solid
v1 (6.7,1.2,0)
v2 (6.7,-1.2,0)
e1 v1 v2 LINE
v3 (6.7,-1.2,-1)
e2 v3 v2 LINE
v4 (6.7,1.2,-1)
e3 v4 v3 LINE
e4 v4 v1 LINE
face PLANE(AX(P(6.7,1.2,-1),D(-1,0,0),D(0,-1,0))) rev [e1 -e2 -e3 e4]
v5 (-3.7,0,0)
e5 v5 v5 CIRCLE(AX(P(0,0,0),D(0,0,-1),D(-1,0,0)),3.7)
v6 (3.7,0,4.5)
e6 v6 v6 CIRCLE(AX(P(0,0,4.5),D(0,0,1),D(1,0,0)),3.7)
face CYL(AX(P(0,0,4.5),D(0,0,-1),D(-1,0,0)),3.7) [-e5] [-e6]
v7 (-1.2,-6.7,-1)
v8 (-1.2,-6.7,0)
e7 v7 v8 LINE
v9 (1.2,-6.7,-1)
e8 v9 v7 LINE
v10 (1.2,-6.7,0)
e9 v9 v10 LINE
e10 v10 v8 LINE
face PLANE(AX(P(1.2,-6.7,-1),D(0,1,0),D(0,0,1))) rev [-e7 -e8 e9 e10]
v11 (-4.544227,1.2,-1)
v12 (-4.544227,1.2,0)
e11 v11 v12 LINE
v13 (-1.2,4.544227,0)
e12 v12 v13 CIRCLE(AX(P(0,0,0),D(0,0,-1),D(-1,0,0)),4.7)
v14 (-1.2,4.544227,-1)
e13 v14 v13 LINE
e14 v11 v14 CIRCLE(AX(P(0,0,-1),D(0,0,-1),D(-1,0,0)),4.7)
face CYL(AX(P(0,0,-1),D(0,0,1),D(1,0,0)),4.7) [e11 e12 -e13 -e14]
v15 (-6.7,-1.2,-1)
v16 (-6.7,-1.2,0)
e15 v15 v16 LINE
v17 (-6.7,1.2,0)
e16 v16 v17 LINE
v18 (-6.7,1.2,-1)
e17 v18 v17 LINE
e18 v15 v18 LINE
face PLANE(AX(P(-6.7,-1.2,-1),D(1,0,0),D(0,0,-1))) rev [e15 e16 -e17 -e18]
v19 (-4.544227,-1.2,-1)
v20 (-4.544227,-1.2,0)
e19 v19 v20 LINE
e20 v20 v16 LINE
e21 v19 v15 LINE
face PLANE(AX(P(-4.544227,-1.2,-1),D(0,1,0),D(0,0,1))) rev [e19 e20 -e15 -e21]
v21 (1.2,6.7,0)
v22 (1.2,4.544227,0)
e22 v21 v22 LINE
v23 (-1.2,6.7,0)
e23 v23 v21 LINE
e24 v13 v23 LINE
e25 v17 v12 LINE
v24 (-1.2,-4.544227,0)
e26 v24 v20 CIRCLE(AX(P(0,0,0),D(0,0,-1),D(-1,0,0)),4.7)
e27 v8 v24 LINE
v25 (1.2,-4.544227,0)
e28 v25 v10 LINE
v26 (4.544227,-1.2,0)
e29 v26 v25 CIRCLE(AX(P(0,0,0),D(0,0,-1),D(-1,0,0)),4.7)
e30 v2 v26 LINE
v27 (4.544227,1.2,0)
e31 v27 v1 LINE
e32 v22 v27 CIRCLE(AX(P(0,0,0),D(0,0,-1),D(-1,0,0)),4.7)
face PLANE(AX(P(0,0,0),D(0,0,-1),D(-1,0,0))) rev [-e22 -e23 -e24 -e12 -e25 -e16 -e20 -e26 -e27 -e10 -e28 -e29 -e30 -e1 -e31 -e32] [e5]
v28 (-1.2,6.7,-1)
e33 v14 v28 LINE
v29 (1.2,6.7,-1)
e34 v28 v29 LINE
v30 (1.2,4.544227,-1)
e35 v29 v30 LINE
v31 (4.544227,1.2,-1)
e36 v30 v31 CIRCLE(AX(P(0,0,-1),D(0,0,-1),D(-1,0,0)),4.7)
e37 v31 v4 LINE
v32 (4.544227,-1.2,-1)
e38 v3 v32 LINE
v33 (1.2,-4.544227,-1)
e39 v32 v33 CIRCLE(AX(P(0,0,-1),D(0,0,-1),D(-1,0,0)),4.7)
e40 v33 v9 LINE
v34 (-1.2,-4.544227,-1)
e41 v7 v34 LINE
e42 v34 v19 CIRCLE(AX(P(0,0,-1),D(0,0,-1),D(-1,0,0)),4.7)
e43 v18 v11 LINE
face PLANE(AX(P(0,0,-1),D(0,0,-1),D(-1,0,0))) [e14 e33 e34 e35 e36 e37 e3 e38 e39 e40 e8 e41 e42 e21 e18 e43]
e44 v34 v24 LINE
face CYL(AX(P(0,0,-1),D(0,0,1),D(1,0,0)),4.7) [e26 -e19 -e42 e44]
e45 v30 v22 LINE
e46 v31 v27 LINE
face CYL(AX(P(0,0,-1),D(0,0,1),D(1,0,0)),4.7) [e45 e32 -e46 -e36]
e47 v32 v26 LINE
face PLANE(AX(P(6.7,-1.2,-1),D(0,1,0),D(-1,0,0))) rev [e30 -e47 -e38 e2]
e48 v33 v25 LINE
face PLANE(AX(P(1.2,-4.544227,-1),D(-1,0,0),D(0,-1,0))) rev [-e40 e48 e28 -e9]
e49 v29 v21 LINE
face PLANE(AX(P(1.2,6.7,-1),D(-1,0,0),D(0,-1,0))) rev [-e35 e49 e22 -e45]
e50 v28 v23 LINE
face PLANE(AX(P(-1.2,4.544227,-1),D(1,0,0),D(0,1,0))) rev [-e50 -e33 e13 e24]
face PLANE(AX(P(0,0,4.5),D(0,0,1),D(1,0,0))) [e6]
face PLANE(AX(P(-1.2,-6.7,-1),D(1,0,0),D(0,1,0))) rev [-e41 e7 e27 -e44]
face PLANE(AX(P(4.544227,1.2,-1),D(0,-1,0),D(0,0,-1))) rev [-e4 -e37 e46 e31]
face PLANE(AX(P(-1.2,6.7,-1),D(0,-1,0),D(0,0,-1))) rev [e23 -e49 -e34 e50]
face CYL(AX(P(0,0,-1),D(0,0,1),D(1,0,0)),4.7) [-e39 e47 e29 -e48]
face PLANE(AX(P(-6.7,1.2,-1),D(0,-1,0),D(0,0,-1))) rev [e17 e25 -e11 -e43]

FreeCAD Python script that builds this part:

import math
import FreeCAD as App
import Part
import Sketcher
from FreeCAD import Vector

doc = App.newDocument("Part")
body = doc.addObject("PartDesign::Body", "Body")

# Sketch on XY plane
sketch1 = body.newObject("Sketcher::SketchObject", "Sketch")
sketch1.AttachmentSupport = (doc.getObject("XY_Plane"), [""])
sketch1.MapMode = "FlatFace"
sketch1.addGeometry(Part.Circle(Vector(0, 0, 0), Vector(0, 0, 1), 3.7), False)
sketch1.addConstraint([
    Sketcher.Constraint("Coincident", 0, 3, -1, 1),
    Sketcher.Constraint("Diameter", 0, 7.4),
])
pad1 = body.newObject("PartDesign::Pad", "Pad")
pad1.Profile = sketch1
pad1.Length = 4.5

# Sketch on XY plane
sketch2 = body.newObject("Sketcher::SketchObject", "Sketch001")
sketch2.AttachmentSupport = (doc.getObject("XY_Plane"), [""])
sketch2.MapMode = "FlatFace"
sketch2.addGeometry([
    Part.LineSegment(Vector(1.2, 6.7, 0), Vector(1.2, 4.544227, 0)),  # 0
    Part.ArcOfCircle(Part.Circle(Vector(0, 0, 0), Vector(0, 0, 1), 4.7), math.radians(14.792497), math.radians(75.207503)),  # 1
    Part.LineSegment(Vector(4.544227, 1.2, 0), Vector(6.7, 1.2, 0)),  # 2
    Part.LineSegment(Vector(6.7, 1.2, 0), Vector(6.7, -1.2, 0)),  # 3
    Part.LineSegment(Vector(6.7, -1.2, 0), Vector(4.544227, -1.2, 0)),  # 4
    Part.ArcOfCircle(Part.Circle(Vector(0, 0, 0), Vector(0, 0, 1), 4.7), math.radians(-75.207503), math.radians(-14.792497)),  # 5
    Part.LineSegment(Vector(1.2, -4.544227, 0), Vector(1.2, -6.7, 0)),  # 6
    Part.LineSegment(Vector(1.2, -6.7, 0), Vector(-1.2, -6.7, 0)),  # 7
    Part.LineSegment(Vector(-1.2, -6.7, 0), Vector(-1.2, -4.544227, 0)),  # 8
    Part.ArcOfCircle(Part.Circle(Vector(0, 0, 0), Vector(0, 0, 1), 4.7), math.radians(-165.207503), math.radians(-104.792497)),  # 9
    Part.LineSegment(Vector(-4.544227, -1.2, 0), Vector(-6.7, -1.2, 0)),  # 10
    Part.LineSegment(Vector(-6.7, -1.2, 0), Vector(-6.7, 1.2, 0)),  # 11
    Part.LineSegment(Vector(-6.7, 1.2, 0), Vector(-4.544227, 1.2, 0)),  # 12
    Part.ArcOfCircle(Part.Circle(Vector(0, 0, 0), Vector(0, 0, 1), 4.7), math.radians(104.792497), math.radians(165.207503)),  # 13
    Part.LineSegment(Vector(-1.2, 4.544227, 0), Vector(-1.2, 6.7, 0)),  # 14
    Part.LineSegment(Vector(-1.2, 6.7, 0), Vector(1.2, 6.7, 0)),  # 15
], False)
sketch2.addConstraint([
    Sketcher.Constraint("Coincident", 0, 2, 1, 2),
    Sketcher.Constraint("Coincident", 1, 1, 2, 1),
    Sketcher.Constraint("Coincident", 2, 2, 3, 1),
    Sketcher.Constraint("Coincident", 3, 2, 4, 1),
    Sketcher.Constraint("Coincident", 4, 2, 5, 2),
    Sketcher.Constraint("Coincident", 5, 1, 6, 1),
    Sketcher.Constraint("Coincident", 6, 2, 7, 1),
    Sketcher.Constraint("Coincident", 7, 2, 8, 1),
    Sketcher.Constraint("Coincident", 8, 2, 9, 2),
    Sketcher.Constraint("Coincident", 9, 1, 10, 1),
    Sketcher.Constraint("Coincident", 10, 2, 11, 1),
    Sketcher.Constraint("Coincident", 11, 2, 12, 1),
    Sketcher.Constraint("Coincident", 12, 2, 13, 2),
    Sketcher.Constraint("Coincident", 13, 1, 14, 1),
    Sketcher.Constraint("Coincident", 14, 2, 15, 1),
    Sketcher.Constraint("Coincident", 15, 2, 0, 1),
    Sketcher.Constraint("Vertical", 0),
    Sketcher.Constraint("Horizontal", 2),
    Sketcher.Constraint("Vertical", 3),
    Sketcher.Constraint("Horizontal", 4),
    Sketcher.Constraint("Vertical", 6),
    Sketcher.Constraint("Horizontal", 7),
    Sketcher.Constraint("Vertical", 8),
    Sketcher.Constraint("Horizontal", 10),
    Sketcher.Constraint("Vertical", 11),
    Sketcher.Constraint("Horizontal", 12),
    Sketcher.Constraint("Vertical", 14),
    Sketcher.Constraint("Horizontal", 15),
    Sketcher.Constraint("Coincident", 1, 3, -1, 1),
    Sketcher.Constraint("Coincident", 5, 3, -1, 1),
    Sketcher.Constraint("Coincident", 9, 3, -1, 1),
    Sketcher.Constraint("Coincident", 13, 3, -1, 1),
    Sketcher.Constraint("Equal", 1, 5),
    Sketcher.Constraint("Equal", 5, 9),
    Sketcher.Constraint("Equal", 9, 13),
    Sketcher.Constraint("Symmetric", 2, 2, 10, 2, -1, 1),
    Sketcher.Constraint("Symmetric", 6, 2, 14, 2, -1, 1),
    Sketcher.Constraint("Horizontal", 5, 1, 8, 2),
    Sketcher.Constraint("Horizontal", 4, 2, 9, 1),
    Sketcher.Constraint("Horizontal", 2, 2, 11, 2),
    Sketcher.Constraint("Horizontal", 0, 2, 13, 1),
    Sketcher.Constraint("Equal", 12, 0),
    Sketcher.Constraint("Equal", 15, 3),
    Sketcher.Constraint("Radius", 1, 4.7),
    Sketcher.Constraint("DistanceX", 7, 2, 7, 1, 2.4),
    Sketcher.Constraint("DistanceX", -1, 1, 2, 2, 6.7),
])
pad2 = body.newObject("PartDesign::Pad", "Pad001")
pad2.Profile = sketch2
pad2.Length = 1
pad2.Reversed = True

doc.recompute()
